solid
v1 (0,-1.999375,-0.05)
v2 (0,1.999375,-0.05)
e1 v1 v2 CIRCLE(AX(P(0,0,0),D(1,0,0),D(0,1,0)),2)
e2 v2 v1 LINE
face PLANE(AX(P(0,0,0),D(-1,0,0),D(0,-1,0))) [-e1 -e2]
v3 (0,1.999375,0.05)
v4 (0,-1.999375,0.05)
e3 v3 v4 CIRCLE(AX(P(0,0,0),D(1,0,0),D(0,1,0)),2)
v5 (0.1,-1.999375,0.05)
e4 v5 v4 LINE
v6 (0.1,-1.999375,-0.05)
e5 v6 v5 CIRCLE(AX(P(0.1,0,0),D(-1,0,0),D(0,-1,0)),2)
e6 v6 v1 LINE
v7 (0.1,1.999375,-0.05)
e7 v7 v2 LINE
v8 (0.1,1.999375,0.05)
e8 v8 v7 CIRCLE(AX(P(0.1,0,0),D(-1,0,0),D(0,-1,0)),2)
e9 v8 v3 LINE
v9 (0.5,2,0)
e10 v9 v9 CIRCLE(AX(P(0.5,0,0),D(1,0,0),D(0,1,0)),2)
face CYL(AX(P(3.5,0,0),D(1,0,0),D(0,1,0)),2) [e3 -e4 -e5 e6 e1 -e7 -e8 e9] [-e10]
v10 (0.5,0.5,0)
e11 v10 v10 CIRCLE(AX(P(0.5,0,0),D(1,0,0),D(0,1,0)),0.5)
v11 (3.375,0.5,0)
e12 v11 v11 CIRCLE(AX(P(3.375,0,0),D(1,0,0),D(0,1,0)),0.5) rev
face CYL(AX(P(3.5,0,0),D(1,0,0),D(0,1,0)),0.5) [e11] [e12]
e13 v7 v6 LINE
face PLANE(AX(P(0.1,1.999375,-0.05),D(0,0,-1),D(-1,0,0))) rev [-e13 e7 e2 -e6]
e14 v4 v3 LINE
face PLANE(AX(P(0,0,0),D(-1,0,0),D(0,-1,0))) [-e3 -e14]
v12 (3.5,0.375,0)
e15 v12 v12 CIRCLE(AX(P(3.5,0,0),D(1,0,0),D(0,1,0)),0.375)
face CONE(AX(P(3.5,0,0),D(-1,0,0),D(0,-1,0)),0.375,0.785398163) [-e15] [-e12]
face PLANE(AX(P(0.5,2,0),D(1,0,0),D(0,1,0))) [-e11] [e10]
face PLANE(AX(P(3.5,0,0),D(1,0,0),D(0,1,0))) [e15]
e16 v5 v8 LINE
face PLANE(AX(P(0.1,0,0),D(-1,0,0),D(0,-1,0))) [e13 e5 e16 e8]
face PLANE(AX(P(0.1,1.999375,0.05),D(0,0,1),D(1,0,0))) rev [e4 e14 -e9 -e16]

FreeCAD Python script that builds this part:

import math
import FreeCAD as App
import Part
import Sketcher


def edges_at(feature, points):
    """Names of the edges that pass closest to the given points."""
    edges = feature.Shape.Edges
    near = lambda p: min(range(len(edges)), key=lambda i: edges[i].distToShape(Part.Vertex(*p))[0])
    return sorted({f"Edge{near(p) + 1}" for p in points})


def add_polygon(sketch, points):
    """Adds a closed chain of lines whose ends are joined by coincident constraints."""
    first, n = sketch.GeometryCount, len(points)
    for a, b in zip(points, points[1:] + points[:1]):
        sketch.addGeometry(Part.LineSegment(App.Vector(*a, 0), App.Vector(*b, 0)), False)
    for i in range(n):
        sketch.addConstraint(Sketcher.Constraint("Coincident", first + i, 2, first + (i + 1) % n, 1))

doc = App.newDocument("Part")
params = doc.addObject("Spreadsheet::Sheet", "Params")
for row, (alias, value) in enumerate([
    ("sketch1_width", "3 mm"),
    ("sketch1_height", "2 mm"),
    ("sketch1_width2", "3.5 mm"),
    ("revolution_angle", "360 deg"),
    ("chamfer_size", "0.125 mm"),
    ("sketch2_radius", "1.999999 mm"),
    ("pocket1_length", "0.1 mm"),
], start=1):
    params.set(f"A{row}", alias)
    params.set(f"B{row}", "=" + value)
    params.setAlias(f"B{row}", alias)

body = doc.addObject("PartDesign::Body", "Body")

# Sketch on XY plane
sketch1 = doc.addObject("Sketcher::SketchObject", "Sketch")
body.addObject(sketch1)
sketch1.AttachmentSupport = (doc.XY_Plane, [""])
sketch1.MapMode = "FlatFace"
add_polygon(sketch1, [(0, 2), (0, 0), (3.5, 0), (3.5, 0.5), (0.5, 0.5), (0.5, 2)])  # lines 0-5
sketch1.addConstraint(Sketcher.Constraint("Vertical", 0))
sketch1.addConstraint(Sketcher.Constraint("Horizontal", 1))
sketch1.addConstraint(Sketcher.Constraint("Vertical", 2))
sketch1.addConstraint(Sketcher.Constraint("Horizontal", 3))
sketch1.addConstraint(Sketcher.Constraint("Vertical", 4))
sketch1.addConstraint(Sketcher.Constraint("Horizontal", 5))
sketch1.addConstraint(Sketcher.Constraint("Coincident", 0, 2, -1, 1))
sketch1.addConstraint(Sketcher.Constraint("Equal", 5, 2))
sketch1.addConstraint(Sketcher.Constraint("DistanceX", 3, 2, 3, 1, 3.0))
sketch1.addConstraint(Sketcher.Constraint("DistanceY", 0, 2, 0, 1, 2.0))
sketch1.addConstraint(Sketcher.Constraint("DistanceX", 1, 1, 1, 2, 3.5))
sketch1.setExpression("Constraints[14]", "Params.sketch1_width")
sketch1.setExpression("Constraints[15]", "Params.sketch1_height")
sketch1.setExpression("Constraints[16]", "Params.sketch1_width2")
revolution = doc.addObject("PartDesign::Revolution", "Revolution")
body.addObject(revolution)
revolution.Profile = sketch1
revolution.ReferenceAxis = (sketch1, ["H_Axis"])
revolution.setExpression("Angle", "Params.revolution_angle")
doc.recompute()

chamfer = doc.addObject("PartDesign::Chamfer", "Chamfer")
body.addObject(chamfer)
chamfer.Base = (revolution, edges_at(revolution, [(3.5, -0.5, 0)]))
chamfer.setExpression("Size", "Params.chamfer_size")

# Sketch on YZ plane
sketch2 = doc.addObject("Sketcher::SketchObject", "Sketch001")
body.addObject(sketch2)
sketch2.AttachmentSupport = (doc.YZ_Plane, [""])
sketch2.MapMode = "FlatFace"
sketch2.addGeometry(Part.LineSegment(App.Vector(2, -0.05, 0), App.Vector(-2, -0.05, 0)), False)
sketch2.addGeometry(Part.ArcOfCircle(Part.Circle(App.Vector(0, 0, 0), App.Vector(0, 0, 1), 2), math.radians(178.57), math.radians(181.43)), False)
sketch2.addGeometry(Part.LineSegment(App.Vector(-2, 0.05, 0), App.Vector(2, 0.05, 0)), False)
sketch2.addGeometry(Part.ArcOfCircle(Part.Circle(App.Vector(0, 0, 0), App.Vector(0, 0, 1), 2), math.radians(-1.43), math.radians(1.43)), False)
sketch2.addConstraint(Sketcher.Constraint("Coincident", 0, 2, 1, 2))
sketch2.addConstraint(Sketcher.Constraint("Coincident", 1, 1, 2, 1))
sketch2.addConstraint(Sketcher.Constraint("Coincident", 2, 2, 3, 2))
sketch2.addConstraint(Sketcher.Constraint("Coincident", 3, 1, 0, 1))
sketch2.addConstraint(Sketcher.Constraint("Horizontal", 0))
sketch2.addConstraint(Sketcher.Constraint("Horizontal", 2))
sketch2.addConstraint(Sketcher.Constraint("Coincident", 1, 3, -1, 1))
sketch2.addConstraint(Sketcher.Constraint("Coincident", 3, 3, -1, 1))
sketch2.addConstraint(Sketcher.Constraint("Equal", 1, 3))
sketch2.addConstraint(Sketcher.Constraint("Vertical", 0, 2, 1, 1))
sketch2.addConstraint(Sketcher.Constraint("Radius", 1, 1.999999))
sketch2.addConstraint(Sketcher.Constraint("DistanceY", 0, 2, 1, 1, 0.1))
sketch2.setExpression("Constraints[10]", "Params.sketch2_radius")
pocket1 = doc.addObject("PartDesign::Pocket", "Pocket")
body.addObject(pocket1)
pocket1.Profile = sketch2
pocket1.setExpression("Length", "Params.pocket1_length")
pocket1.Reversed = True

doc.recompute()
